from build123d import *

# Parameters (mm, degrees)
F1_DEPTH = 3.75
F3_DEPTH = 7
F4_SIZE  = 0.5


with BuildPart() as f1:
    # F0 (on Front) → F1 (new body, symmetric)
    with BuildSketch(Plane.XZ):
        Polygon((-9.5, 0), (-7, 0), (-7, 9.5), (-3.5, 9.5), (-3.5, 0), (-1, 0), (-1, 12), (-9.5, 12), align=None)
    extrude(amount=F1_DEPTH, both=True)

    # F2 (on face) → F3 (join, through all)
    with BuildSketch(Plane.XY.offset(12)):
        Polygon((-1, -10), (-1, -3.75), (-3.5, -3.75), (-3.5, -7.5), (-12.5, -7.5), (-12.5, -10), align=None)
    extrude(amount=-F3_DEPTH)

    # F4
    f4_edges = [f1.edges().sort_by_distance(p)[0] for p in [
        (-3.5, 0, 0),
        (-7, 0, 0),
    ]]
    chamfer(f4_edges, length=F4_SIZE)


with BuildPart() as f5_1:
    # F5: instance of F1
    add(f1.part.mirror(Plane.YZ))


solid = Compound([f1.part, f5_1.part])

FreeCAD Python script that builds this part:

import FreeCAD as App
import Part
import Sketcher
from FreeCAD import Vector
Q = App.Units.Quantity


def edges_at(feature, points):
    """Names of the edges that pass closest to the given points."""
    edges = feature.Shape.Edges
    near = lambda p: min(range(len(edges)), key=lambda i: edges[i].distToShape(Part.Vertex(*p))[0])
    return sorted({f"Edge{near(p) + 1}" for p in points})

doc = App.newDocument("Part")
params = doc.addObject("Spreadsheet::Sheet", "Params")
for row, (alias, value) in enumerate([
    ("sketch1_height", "12 mm"),
    ("sketch1_width", "2.5 mm"),
    ("sketch1_width2", "3.5 mm"),
    ("sketch1_height2", "9.5 mm"),
    ("pad1_length", "7.5 mm"),
    ("sketch2_width", "9 mm"),
    ("sketch2_width2", "2.5 mm"),
    ("sketch2_height", "6.25 mm"),
    ("pad2_length", "7 mm"),
    ("chamfer_size", "0.5 mm"),
], start=1):
    params.set(f"A{row}", alias)
    params.set(f"B{row}", "=" + value)
    params.setAlias(f"B{row}", alias)

body = doc.addObject("PartDesign::Body", "Body")

sketch1 = body.newObject("Sketcher::SketchObject", "Sketch")
sketch1.AttachmentSupport = (doc.getObject("XZ_Plane"), [""])
sketch1.MapMode = "FlatFace"
sketch1.addGeometry(Part.LineSegment(Vector(-9.5, 0, 0), Vector(-7, 0, 0)), False)
sketch1.addGeometry(Part.LineSegment(Vector(-7, 0, 0), Vector(-7, 9.5, 0)), False)
sketch1.addGeometry(Part.LineSegment(Vector(-7, 9.5, 0), Vector(-3.5, 9.5, 0)), False)
sketch1.addGeometry(Part.LineSegment(Vector(-3.5, 9.5, 0), Vector(-3.5, 0, 0)), False)
sketch1.addGeometry(Part.LineSegment(Vector(-3.5, 0, 0), Vector(-1, 0, 0)), False)
sketch1.addGeometry(Part.LineSegment(Vector(-1, 0, 0), Vector(-1, 12, 0)), False)
sketch1.addGeometry(Part.LineSegment(Vector(-1, 12, 0), Vector(-9.5, 12, 0)), False)
sketch1.addGeometry(Part.LineSegment(Vector(-9.5, 12, 0), Vector(-9.5, 0, 0)), False)
sketch1.addConstraint(Sketcher.Constraint("Coincident", 0, 2, 1, 1))
sketch1.addConstraint(Sketcher.Constraint("Coincident", 1, 2, 2, 1))
sketch1.addConstraint(Sketcher.Constraint("Coincident", 2, 2, 3, 1))
sketch1.addConstraint(Sketcher.Constraint("Coincident", 3, 2, 4, 1))
sketch1.addConstraint(Sketcher.Constraint("Coincident", 4, 2, 5, 1))
sketch1.addConstraint(Sketcher.Constraint("Coincident", 5, 2, 6, 1))
sketch1.addConstraint(Sketcher.Constraint("Coincident", 6, 2, 7, 1))
sketch1.addConstraint(Sketcher.Constraint("Coincident", 7, 2, 0, 1))
sketch1.addConstraint(Sketcher.Constraint("Horizontal", 0))
sketch1.addConstraint(Sketcher.Constraint("Vertical", 1))
sketch1.addConstraint(Sketcher.Constraint("Horizontal", 2))
sketch1.addConstraint(Sketcher.Constraint("Vertical", 3))
sketch1.addConstraint(Sketcher.Constraint("Horizontal", 4))
sketch1.addConstraint(Sketcher.Constraint("Vertical", 5))
sketch1.addConstraint(Sketcher.Constraint("Horizontal", 6))
sketch1.addConstraint(Sketcher.Constraint("Vertical", 7))
sketch1.addConstraint(Sketcher.Constraint("PointOnObject", 0, 2, -1))
sketch1.addConstraint(Sketcher.Constraint("PointOnObject", 3, 2, -1))
sketch1.addConstraint(Sketcher.Constraint("Equal", 0, 4))
sketch1.addConstraint(Sketcher.Constraint("DistanceY", 5, 1, 5, 2, Q("12 mm")))
sketch1.addConstraint(Sketcher.Constraint("DistanceX", 0, 1, 0, 2, Q("2.5 mm")))
sketch1.addConstraint(Sketcher.Constraint("DistanceX", 2, 1, 2, 2, Q("3.5 mm")))
sketch1.addConstraint(Sketcher.Constraint("DistanceY", 1, 1, 1, 2, Q("9.5 mm")))
sketch1.addConstraint(Sketcher.Constraint("DistanceX", 0, 2, -1, 1, Q("7 mm")))
sketch1.setExpression("Constraints[19]", "Params.sketch1_height")
sketch1.setExpression("Constraints[20]", "Params.sketch1_width")
sketch1.setExpression("Constraints[21]", "Params.sketch1_width2")
sketch1.setExpression("Constraints[22]", "Params.sketch1_height2")
pad1 = body.newObject("PartDesign::Pad", "Pad")
pad1.Profile = sketch1
pad1.setExpression("Length", "Params.pad1_length")
pad1.Midplane = True

sketch2 = body.newObject("Sketcher::SketchObject", "Sketch001")
sketch2.AttachmentSupport = (doc.getObject("XY_Plane"), [""])
sketch2.MapMode = "FlatFace"
sketch2.AttachmentOffset = App.Placement(Vector(0, 0, 12), App.Rotation())
sketch2.addGeometry(Part.LineSegment(Vector(-1, -10, 0), Vector(-1, -3.75, 0)), False)
sketch2.addGeometry(Part.LineSegment(Vector(-1, -3.75, 0), Vector(-3.5, -3.75, 0)), False)
sketch2.addGeometry(Part.LineSegment(Vector(-3.5, -3.75, 0), Vector(-3.5, -7.5, 0)), False)
sketch2.addGeometry(Part.LineSegment(Vector(-3.5, -7.5, 0), Vector(-12.5, -7.5, 0)), False)
sketch2.addGeometry(Part.LineSegment(Vector(-12.5, -7.5, 0), Vector(-12.5, -10, 0)), False)
sketch2.addGeometry(Part.LineSegment(Vector(-12.5, -10, 0), Vector(-1, -10, 0)), False)
sketch2.addConstraint(Sketcher.Constraint("Coincident", 0, 2, 1, 1))
sketch2.addConstraint(Sketcher.Constraint("Coincident", 1, 2, 2, 1))
sketch2.addConstraint(Sketcher.Constraint("Coincident", 2, 2, 3, 1))
sketch2.addConstraint(Sketcher.Constraint("Coincident", 3, 2, 4, 1))
sketch2.addConstraint(Sketcher.Constraint("Coincident", 4, 2, 5, 1))
sketch2.addConstraint(Sketcher.Constraint("Coincident", 5, 2, 0, 1))
sketch2.addConstraint(Sketcher.Constraint("Vertical", 0))
sketch2.addConstraint(Sketcher.Constraint("Horizontal", 1))
sketch2.addConstraint(Sketcher.Constraint("Vertical", 2))
sketch2.addConstraint(Sketcher.Constraint("Horizontal", 3))
sketch2.addConstraint(Sketcher.Constraint("Vertical", 4))
sketch2.addConstraint(Sketcher.Constraint("Horizontal", 5))
sketch2.addConstraint(Sketcher.Constraint("Equal", 1, 4))
sketch2.addConstraint(Sketcher.Constraint("DistanceX", 3, 2, 3, 1, Q("9 mm")))
sketch2.addConstraint(Sketcher.Constraint("DistanceX", 1, 2, 1, 1, Q("2.5 mm")))
sketch2.addConstraint(Sketcher.Constraint("DistanceX", 0, 2, -1, 1, Q("1 mm")))
sketch2.addConstraint(Sketcher.Constraint("DistanceY", 4, 2, -1, 1, Q("10 mm")))
sketch2.addConstraint(Sketcher.Constraint("DistanceY", 0, 1, 0, 2, Q("6.25 mm")))
sketch2.setExpression("Constraints[13]", "Params.sketch2_width")
sketch2.setExpression("Constraints[14]", "Params.sketch2_width2")
sketch2.setExpression("Constraints[17]", "Params.sketch2_height")
pad2 = body.newObject("PartDesign::Pad", "Pad001")
pad2.Profile = sketch2
pad2.setExpression("Length", "Params.pad2_length")
pad2.Reversed = True
doc.recompute()

chamfer = body.newObject("PartDesign::Chamfer", "Chamfer")
chamfer.Base = (pad2, edges_at(pad2, [(-3.5, 0, 0), (-7, 0, 0)]))
chamfer.setExpression("Size", "Params.chamfer_size")
body2 = doc.addObject("PartDesign::Body", "Body001")
doc.recompute()

mirroring = doc.addObject("Part::Mirroring", "Mirroring")
mirroring.Source = body
mirroring.Base = Vector(0, 0, 0)
mirroring.Normal = Vector(1, 0, 0)
body2.BaseFeature = mirroring
doc.recompute()
mirroring.Visibility = False

doc.recompute()
